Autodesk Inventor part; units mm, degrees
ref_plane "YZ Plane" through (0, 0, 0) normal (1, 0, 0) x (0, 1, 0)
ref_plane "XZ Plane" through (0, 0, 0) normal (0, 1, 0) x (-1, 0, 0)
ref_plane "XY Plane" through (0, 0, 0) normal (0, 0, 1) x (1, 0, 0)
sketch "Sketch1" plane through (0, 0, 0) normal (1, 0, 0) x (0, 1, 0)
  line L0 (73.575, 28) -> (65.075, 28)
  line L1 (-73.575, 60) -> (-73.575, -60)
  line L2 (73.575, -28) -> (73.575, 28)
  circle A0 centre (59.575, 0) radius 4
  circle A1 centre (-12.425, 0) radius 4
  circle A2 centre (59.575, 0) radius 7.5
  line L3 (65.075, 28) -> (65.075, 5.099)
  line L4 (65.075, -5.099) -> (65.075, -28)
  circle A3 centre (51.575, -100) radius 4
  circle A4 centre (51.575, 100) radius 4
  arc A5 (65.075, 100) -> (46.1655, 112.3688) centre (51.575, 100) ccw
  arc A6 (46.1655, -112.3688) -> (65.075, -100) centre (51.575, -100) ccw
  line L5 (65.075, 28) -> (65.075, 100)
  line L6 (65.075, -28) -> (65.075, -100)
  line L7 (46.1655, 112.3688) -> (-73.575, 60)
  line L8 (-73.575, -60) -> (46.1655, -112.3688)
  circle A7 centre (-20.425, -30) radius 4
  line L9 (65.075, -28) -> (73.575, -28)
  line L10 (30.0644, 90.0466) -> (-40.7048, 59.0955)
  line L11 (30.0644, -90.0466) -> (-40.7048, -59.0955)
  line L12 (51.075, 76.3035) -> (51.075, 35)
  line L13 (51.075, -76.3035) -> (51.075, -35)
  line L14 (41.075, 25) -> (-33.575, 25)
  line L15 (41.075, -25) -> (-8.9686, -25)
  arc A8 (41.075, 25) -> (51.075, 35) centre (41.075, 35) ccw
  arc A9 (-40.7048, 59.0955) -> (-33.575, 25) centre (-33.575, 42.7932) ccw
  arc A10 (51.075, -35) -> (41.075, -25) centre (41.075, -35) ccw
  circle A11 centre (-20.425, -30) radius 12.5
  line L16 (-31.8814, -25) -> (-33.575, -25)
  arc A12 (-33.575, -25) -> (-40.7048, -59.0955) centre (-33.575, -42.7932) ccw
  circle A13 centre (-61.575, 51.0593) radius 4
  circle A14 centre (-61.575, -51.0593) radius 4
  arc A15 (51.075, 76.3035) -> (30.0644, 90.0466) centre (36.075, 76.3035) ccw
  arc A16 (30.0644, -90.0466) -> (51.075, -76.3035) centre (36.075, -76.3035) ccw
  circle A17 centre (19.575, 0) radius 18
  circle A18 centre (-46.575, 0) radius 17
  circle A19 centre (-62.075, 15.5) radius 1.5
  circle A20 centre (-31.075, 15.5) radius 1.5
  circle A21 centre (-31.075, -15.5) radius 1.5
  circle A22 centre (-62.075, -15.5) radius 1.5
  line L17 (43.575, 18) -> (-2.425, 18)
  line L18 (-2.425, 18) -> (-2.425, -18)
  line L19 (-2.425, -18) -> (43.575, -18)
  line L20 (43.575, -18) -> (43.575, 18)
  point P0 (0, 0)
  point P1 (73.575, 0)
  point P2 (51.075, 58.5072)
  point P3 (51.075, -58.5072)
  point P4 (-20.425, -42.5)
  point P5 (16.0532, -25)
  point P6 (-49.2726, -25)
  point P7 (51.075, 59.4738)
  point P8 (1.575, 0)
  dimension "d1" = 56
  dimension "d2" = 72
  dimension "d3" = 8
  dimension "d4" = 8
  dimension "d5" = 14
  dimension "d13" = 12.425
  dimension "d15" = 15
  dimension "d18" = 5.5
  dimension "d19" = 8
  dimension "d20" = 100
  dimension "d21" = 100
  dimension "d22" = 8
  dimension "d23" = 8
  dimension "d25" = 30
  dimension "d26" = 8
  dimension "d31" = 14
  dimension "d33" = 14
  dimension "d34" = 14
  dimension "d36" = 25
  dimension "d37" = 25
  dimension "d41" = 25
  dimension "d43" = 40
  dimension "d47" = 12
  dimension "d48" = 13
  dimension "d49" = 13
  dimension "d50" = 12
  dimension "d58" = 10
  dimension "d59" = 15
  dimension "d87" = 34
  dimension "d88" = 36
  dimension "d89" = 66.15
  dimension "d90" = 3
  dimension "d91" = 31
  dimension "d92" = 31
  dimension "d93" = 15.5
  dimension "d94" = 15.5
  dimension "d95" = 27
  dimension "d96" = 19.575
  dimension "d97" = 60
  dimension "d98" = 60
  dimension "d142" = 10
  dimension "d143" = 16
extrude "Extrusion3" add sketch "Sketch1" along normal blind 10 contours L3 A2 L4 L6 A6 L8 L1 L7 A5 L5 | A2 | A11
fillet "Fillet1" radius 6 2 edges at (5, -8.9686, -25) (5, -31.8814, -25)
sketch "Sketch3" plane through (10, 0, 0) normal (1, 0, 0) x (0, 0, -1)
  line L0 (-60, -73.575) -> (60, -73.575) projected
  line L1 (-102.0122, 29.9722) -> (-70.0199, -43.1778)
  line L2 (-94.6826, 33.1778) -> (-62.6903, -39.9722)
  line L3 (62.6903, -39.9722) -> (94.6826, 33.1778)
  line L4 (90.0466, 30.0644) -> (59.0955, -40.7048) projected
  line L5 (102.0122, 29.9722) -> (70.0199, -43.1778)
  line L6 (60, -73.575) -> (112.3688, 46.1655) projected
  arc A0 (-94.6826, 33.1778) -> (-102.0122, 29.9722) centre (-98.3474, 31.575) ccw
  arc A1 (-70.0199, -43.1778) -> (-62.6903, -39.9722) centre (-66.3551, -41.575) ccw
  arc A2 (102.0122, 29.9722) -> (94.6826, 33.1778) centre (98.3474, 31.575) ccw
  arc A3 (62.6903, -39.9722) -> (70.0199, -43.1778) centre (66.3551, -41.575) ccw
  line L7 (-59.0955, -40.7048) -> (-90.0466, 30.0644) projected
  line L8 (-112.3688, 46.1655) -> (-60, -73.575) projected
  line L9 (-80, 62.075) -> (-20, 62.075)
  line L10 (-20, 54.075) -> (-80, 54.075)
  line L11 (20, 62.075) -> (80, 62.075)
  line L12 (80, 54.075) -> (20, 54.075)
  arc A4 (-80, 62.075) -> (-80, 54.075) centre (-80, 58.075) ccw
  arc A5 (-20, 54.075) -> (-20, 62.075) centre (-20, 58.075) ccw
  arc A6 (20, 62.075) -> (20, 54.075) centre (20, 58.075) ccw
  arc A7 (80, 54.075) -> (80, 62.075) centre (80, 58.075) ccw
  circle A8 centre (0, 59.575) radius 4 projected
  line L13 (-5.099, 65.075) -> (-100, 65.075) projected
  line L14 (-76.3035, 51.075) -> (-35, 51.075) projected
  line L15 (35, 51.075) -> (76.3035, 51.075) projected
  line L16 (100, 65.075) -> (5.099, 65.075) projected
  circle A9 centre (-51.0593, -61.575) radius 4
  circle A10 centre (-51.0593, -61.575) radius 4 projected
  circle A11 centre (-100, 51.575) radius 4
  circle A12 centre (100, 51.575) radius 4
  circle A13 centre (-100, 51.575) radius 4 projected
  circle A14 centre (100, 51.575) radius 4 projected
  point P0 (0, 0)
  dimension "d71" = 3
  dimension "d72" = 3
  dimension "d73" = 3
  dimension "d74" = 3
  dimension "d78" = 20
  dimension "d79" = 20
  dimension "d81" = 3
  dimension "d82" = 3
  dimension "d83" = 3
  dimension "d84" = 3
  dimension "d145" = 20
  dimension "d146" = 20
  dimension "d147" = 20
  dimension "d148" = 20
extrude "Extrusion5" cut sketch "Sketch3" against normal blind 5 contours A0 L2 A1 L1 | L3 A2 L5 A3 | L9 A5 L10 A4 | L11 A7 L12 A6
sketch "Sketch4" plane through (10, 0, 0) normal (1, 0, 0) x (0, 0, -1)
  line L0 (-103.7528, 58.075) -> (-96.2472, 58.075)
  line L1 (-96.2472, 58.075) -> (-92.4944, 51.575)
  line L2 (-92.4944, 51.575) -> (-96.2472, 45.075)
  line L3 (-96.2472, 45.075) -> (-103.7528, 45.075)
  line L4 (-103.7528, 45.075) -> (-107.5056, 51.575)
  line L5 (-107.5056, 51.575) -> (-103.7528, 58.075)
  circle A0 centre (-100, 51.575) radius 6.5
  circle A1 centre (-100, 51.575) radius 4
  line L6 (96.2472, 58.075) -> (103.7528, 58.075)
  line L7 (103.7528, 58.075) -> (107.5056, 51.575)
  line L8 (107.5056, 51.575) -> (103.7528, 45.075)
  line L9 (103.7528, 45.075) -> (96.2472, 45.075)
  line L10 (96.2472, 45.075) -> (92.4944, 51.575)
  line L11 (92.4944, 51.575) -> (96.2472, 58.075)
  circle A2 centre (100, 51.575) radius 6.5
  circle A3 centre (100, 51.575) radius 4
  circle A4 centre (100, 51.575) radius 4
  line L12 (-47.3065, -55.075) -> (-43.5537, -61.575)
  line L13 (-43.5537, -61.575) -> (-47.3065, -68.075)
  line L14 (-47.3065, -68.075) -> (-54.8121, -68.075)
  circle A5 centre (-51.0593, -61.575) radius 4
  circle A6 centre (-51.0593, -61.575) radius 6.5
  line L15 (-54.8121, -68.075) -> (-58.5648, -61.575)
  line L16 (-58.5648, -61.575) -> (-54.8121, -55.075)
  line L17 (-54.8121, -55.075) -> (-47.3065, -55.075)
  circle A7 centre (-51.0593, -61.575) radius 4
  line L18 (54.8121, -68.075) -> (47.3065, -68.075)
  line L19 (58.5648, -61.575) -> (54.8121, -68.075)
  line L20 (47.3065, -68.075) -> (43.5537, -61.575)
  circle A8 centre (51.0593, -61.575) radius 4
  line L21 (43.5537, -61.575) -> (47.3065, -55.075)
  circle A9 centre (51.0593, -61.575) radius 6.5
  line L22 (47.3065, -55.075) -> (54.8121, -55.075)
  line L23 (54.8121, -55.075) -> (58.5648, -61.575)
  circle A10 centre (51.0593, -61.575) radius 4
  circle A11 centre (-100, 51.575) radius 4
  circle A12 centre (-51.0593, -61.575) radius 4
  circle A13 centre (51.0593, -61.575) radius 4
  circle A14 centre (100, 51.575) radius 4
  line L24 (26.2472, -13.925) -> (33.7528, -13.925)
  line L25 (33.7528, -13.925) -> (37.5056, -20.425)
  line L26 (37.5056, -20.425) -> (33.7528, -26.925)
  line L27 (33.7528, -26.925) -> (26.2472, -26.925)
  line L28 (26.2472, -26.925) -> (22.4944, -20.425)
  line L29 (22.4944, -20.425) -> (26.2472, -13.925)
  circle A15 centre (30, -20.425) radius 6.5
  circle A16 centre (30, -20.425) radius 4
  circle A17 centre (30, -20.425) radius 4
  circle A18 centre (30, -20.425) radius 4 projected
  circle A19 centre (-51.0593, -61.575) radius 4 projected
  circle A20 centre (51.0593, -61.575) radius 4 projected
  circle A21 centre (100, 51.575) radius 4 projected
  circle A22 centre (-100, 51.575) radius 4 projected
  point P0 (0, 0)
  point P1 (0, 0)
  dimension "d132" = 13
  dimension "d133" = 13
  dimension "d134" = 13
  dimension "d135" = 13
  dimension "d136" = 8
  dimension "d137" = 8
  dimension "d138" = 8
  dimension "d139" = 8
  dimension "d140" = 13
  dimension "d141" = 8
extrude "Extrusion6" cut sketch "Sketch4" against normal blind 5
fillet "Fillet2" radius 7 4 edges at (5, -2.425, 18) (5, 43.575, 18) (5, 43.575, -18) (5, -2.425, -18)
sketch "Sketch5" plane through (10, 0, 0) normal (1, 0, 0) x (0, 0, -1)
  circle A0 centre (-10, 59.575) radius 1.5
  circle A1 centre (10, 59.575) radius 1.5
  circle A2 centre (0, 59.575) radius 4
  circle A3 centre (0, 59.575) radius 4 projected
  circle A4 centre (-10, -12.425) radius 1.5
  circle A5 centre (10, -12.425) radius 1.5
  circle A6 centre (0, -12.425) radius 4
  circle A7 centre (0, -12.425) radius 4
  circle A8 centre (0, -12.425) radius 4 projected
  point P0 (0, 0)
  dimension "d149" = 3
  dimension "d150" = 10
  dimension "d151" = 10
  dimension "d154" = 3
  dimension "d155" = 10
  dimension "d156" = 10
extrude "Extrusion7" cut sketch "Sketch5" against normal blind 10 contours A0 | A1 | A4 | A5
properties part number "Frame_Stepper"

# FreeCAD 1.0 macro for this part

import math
import FreeCAD as App
import Part
import Sketcher

V = App.Vector
Q = App.Units.Quantity


def edges_at(feature, points):
    """Names of the edges that pass closest to the given points."""
    edges = feature.Shape.Edges
    near = lambda p: min(range(len(edges)), key=lambda i: edges[i].distToShape(Part.Vertex(*p))[0])
    return sorted({f"Edge{near(p) + 1}" for p in points})


def add_polygon(sketch, points):
    """Adds a closed chain of lines whose ends are joined by coincident constraints."""
    first, n = sketch.GeometryCount, len(points)
    for a, b in zip(points, points[1:] + points[:1]):
        sketch.addGeometry(Part.LineSegment(App.Vector(*a, 0), App.Vector(*b, 0)), False)
    for i in range(n):
        sketch.addConstraint(Sketcher.Constraint("Coincident", first + i, 2, first + (i + 1) % n, 1))

doc = App.newDocument("Part")
body = doc.addObject("PartDesign::Body", "Body")

# Sketch on YZ plane
sketch1 = doc.addObject("Sketcher::SketchObject", "Sketch")
body.addObject(sketch1)
sketch1.AttachmentSupport = (doc.YZ_Plane, [""])
sketch1.MapMode = "FlatFace"
sketch1.addGeometry(Part.LineSegment(V(65.1, 5.1, 0), V(65.1, 100, 0)), False)  # 0
sketch1.addGeometry(Part.ArcOfCircle(Part.Circle(V(51.6, 100, 0), V(0, 0, 1), 13.5), math.radians(0), math.radians(114)), False)  # 1
sketch1.addGeometry(Part.LineSegment(V(46.2, 112.4, 0), V(-73.6, 60, 0)), False)  # 2
sketch1.addGeometry(Part.LineSegment(V(-73.6, 60, 0), V(-73.6, -60, 0)), False)  # 3
sketch1.addGeometry(Part.LineSegment(V(-73.6, -60, 0), V(46.2, -112.4, 0)), False)  # 4
sketch1.addGeometry(Part.ArcOfCircle(Part.Circle(V(51.6, -100, 0), V(0, 0, 1), 13.5), math.radians(-114), math.radians(0)), False)  # 5
sketch1.addGeometry(Part.LineSegment(V(65.1, -100, 0), V(65.1, -5.1, 0)), False)  # 6
sketch1.addGeometry(Part.ArcOfCircle(Part.Circle(V(59.6, 0, 0), V(0, 0, 1), 7.5), math.radians(-43), math.radians(43)), False)  # 7
sketch1.addGeometry(Part.Circle(V(-61.6, -51.1, 0), V(0, 0, 1), 4), False)  # 8
sketch1.addGeometry(Part.Circle(V(-62.1, -15.5, 0), V(0, 0, 1), 1.5), False)  # 9
sketch1.addGeometry(Part.Circle(V(-46.6, 0, 0), V(0, 0, 1), 17), False)  # 10
sketch1.addGeometry(Part.ArcOfCircle(Part.Circle(V(36.1, -76.3, 0), V(0, 0, 1), 15), math.radians(-114), math.radians(0)), False)  # 11
sketch1.addGeometry(Part.LineSegment(V(30.1, -90, 0), V(-40.7, -59.1, 0)), False)  # 12
sketch1.addGeometry(Part.ArcOfCircle(Part.Circle(V(-33.6, -42.8, 0), V(0, 0, 1), 17.8), math.radians(90), math.radians(246)), False)  # 13
sketch1.addGeometry(Part.LineSegment(V(-33.6, -25, 0), V(-31.9, -25, 0)), False)  # 14
sketch1.addGeometry(Part.ArcOfCircle(Part.Circle(V(-20.4, -30, 0), V(0, 0, 1), 12.5), math.radians(156), math.radians(384)), False)  # 15
sketch1.addGeometry(Part.LineSegment(V(-9, -25, 0), V(41.1, -25, 0)), False)  # 16
sketch1.addGeometry(Part.ArcOfCircle(Part.Circle(V(41.1, -35, 0), V(0, 0, 1), 10), math.radians(0), math.radians(90)), False)  # 17
sketch1.addGeometry(Part.LineSegment(V(51.1, -35, 0), V(51.1, -76.3, 0)), False)  # 18
sketch1.addGeometry(Part.Circle(V(-31.1, -15.5, 0), V(0, 0, 1), 1.5), False)  # 19
sketch1.addGeometry(Part.Circle(V(-12.4, 0, 0), V(0, 0, 1), 4), False)  # 20
sketch1.addGeometry(Part.Circle(V(51.6, -100, 0), V(0, 0, 1), 4), False)  # 21
add_polygon(sketch1, [(-2.4, 18), (43.6, 18), (43.6, -18), (-2.4, -18)])  # lines 22-25
sketch1.addGeometry(Part.Circle(V(-62.1, 15.5, 0), V(0, 0, 1), 1.5), False)  # 26
sketch1.addGeometry(Part.Circle(V(-61.6, 51.1, 0), V(0, 0, 1), 4), False)  # 27
sketch1.addGeometry(Part.Circle(V(-31.1, 15.5, 0), V(0, 0, 1), 1.5), False)  # 28
sketch1.addGeometry(Part.LineSegment(V(-40.7, 59.1, 0), V(30.1, 90, 0)), False)  # 29
sketch1.addGeometry(Part.ArcOfCircle(Part.Circle(V(36.1, 76.3, 0), V(0, 0, 1), 15), math.radians(0), math.radians(114)), False)  # 30
sketch1.addGeometry(Part.LineSegment(V(51.1, 76.3, 0), V(51.1, 35, 0)), False)  # 31
sketch1.addGeometry(Part.ArcOfCircle(Part.Circle(V(41.1, 35, 0), V(0, 0, 1), 10), math.radians(-90), math.radians(0)), False)  # 32
sketch1.addGeometry(Part.LineSegment(V(41.1, 25, 0), V(-33.6, 25, 0)), False)  # 33
sketch1.addGeometry(Part.ArcOfCircle(Part.Circle(V(-33.6, 42.8, 0), V(0, 0, 1), 17.8), math.radians(114), math.radians(270)), False)  # 34
sketch1.addGeometry(Part.Circle(V(51.6, 100, 0), V(0, 0, 1), 4), False)  # 35
sketch1.addGeometry(Part.Circle(V(59.6, 0, 0), V(0, 0, 1), 4), False)  # 36
sketch1.addGeometry(Part.Circle(V(-20.4, -30, 0), V(0, 0, 1), 4), False)  # 37
sketch1.addConstraint(Sketcher.Constraint("Tangent", 0, 2, 1, 1))
sketch1.addConstraint(Sketcher.Constraint("Tangent", 1, 2, 2, 1))
sketch1.addConstraint(Sketcher.Constraint("Coincident", 2, 2, 3, 1))
sketch1.addConstraint(Sketcher.Constraint("Coincident", 3, 2, 4, 1))
sketch1.addConstraint(Sketcher.Constraint("Tangent", 4, 2, 5, 1))
sketch1.addConstraint(Sketcher.Constraint("Tangent", 5, 2, 6, 1))
sketch1.addConstraint(Sketcher.Constraint("Coincident", 6, 2, 7, 1))
sketch1.addConstraint(Sketcher.Constraint("Coincident", 7, 2, 0, 1))
sketch1.addConstraint(Sketcher.Constraint("Tangent", 11, 1, 12, 1))
sketch1.addConstraint(Sketcher.Constraint("Tangent", 12, 2, 13, 2))
sketch1.addConstraint(Sketcher.Constraint("Tangent", 13, 1, 14, 1))
sketch1.addConstraint(Sketcher.Constraint("Coincident", 14, 2, 15, 1))
sketch1.addConstraint(Sketcher.Constraint("Coincident", 15, 2, 16, 1))
sketch1.addConstraint(Sketcher.Constraint("Tangent", 16, 2, 17, 2))
sketch1.addConstraint(Sketcher.Constraint("Tangent", 17, 1, 18, 1))
sketch1.addConstraint(Sketcher.Constraint("Tangent", 18, 2, 11, 2))
sketch1.addConstraint(Sketcher.Constraint("Tangent", 29, 2, 30, 2))
sketch1.addConstraint(Sketcher.Constraint("Tangent", 30, 1, 31, 1))
sketch1.addConstraint(Sketcher.Constraint("Tangent", 31, 2, 32, 2))
sketch1.addConstraint(Sketcher.Constraint("Tangent", 32, 1, 33, 1))
sketch1.addConstraint(Sketcher.Constraint("Tangent", 33, 2, 34, 2))
sketch1.addConstraint(Sketcher.Constraint("Tangent", 34, 1, 29, 1))
sketch1.addConstraint(Sketcher.Constraint("Vertical", 0))
sketch1.addConstraint(Sketcher.Constraint("Vertical", 3))
sketch1.addConstraint(Sketcher.Constraint("Vertical", 6))
sketch1.addConstraint(Sketcher.Constraint("Horizontal", 14))
sketch1.addConstraint(Sketcher.Constraint("Horizontal", 16))
sketch1.addConstraint(Sketcher.Constraint("Vertical", 18))
sketch1.addConstraint(Sketcher.Constraint("Horizontal", 22))
sketch1.addConstraint(Sketcher.Constraint("Vertical", 23))
sketch1.addConstraint(Sketcher.Constraint("Horizontal", 24))
sketch1.addConstraint(Sketcher.Constraint("Vertical", 25))
sketch1.addConstraint(Sketcher.Constraint("Vertical", 31))
sketch1.addConstraint(Sketcher.Constraint("Horizontal", 33))
sketch1.addConstraint(Sketcher.Constraint("Coincident", 21, 3, 5, 3))
sketch1.addConstraint(Sketcher.Constraint("Coincident", 35, 3, 1, 3))
sketch1.addConstraint(Sketcher.Constraint("Coincident", 36, 3, 7, 3))
sketch1.addConstraint(Sketcher.Constraint("Coincident", 37, 3, 15, 3))
sketch1.addConstraint(Sketcher.Constraint("Equal", 1, 5))
sketch1.addConstraint(Sketcher.Constraint("Equal", 9, 19))
sketch1.addConstraint(Sketcher.Constraint("Equal", 8, 20))
sketch1.addConstraint(Sketcher.Constraint("Equal", 20, 21))
sketch1.addConstraint(Sketcher.Constraint("Equal", 19, 26))
sketch1.addConstraint(Sketcher.Constraint("Equal", 21, 27))
sketch1.addConstraint(Sketcher.Constraint("Equal", 26, 28))
sketch1.addConstraint(Sketcher.Constraint("Equal", 11, 30))
sketch1.addConstraint(Sketcher.Constraint("Equal", 17, 32))
sketch1.addConstraint(Sketcher.Constraint("Equal", 13, 34))
sketch1.addConstraint(Sketcher.Constraint("Equal", 27, 35))
sketch1.addConstraint(Sketcher.Constraint("Equal", 35, 36))
sketch1.addConstraint(Sketcher.Constraint("Equal", 36, 37))
sketch1.addConstraint(Sketcher.Constraint("Symmetric", 1, 3, 5, 3, -1))
sketch1.addConstraint(Sketcher.Constraint("Symmetric", 9, 3, 26, 3, -1))
sketch1.addConstraint(Sketcher.Constraint("Symmetric", 8, 3, 27, 3, -1))
sketch1.addConstraint(Sketcher.Constraint("Symmetric", 19, 3, 28, 3, -1))
sketch1.addConstraint(Sketcher.Constraint("Symmetric", 11, 3, 30, 3, -1))
sketch1.addConstraint(Sketcher.Constraint("Symmetric", 13, 3, 34, 3, -1))
sketch1.addConstraint(Sketcher.Constraint("PointOnObject", 7, 3, -1))
sketch1.addConstraint(Sketcher.Constraint("PointOnObject", 10, 3, -1))
sketch1.addConstraint(Sketcher.Constraint("PointOnObject", 20, 3, -1))
sketch1.addConstraint(Sketcher.Constraint("Parallel", 4, 12))
sketch1.addConstraint(Sketcher.Constraint("Parallel", 2, 29))
sketch1.addConstraint(Sketcher.Constraint("Horizontal", 9, 3, 19, 3))
sketch1.addConstraint(Sketcher.Constraint("Horizontal", 14, 2, 15, 2))
sketch1.addConstraint(Sketcher.Constraint("Diameter", 8, 8.0))
sketch1.addConstraint(Sketcher.Constraint("Diameter", 9, 3.0))
sketch1.addConstraint(Sketcher.Constraint("Diameter", 10, 34.0))
sketch1.addConstraint(Sketcher.Constraint("Radius", 11, 15.0))
sketch1.addConstraint(Sketcher.Constraint("Radius", 17, 10.0))
sketch1.addConstraint(Sketcher.Constraint("Radius", 1, 13.5))
sketch1.addConstraint(Sketcher.Constraint("Radius", 7, 7.5))
sketch1.addConstraint(Sketcher.Constraint("Radius", 15, 12.5))
sketch1.addConstraint(Sketcher.Constraint("DistanceY", 23, 2, 23, 1, 36.0))
sketch1.addConstraint(Sketcher.Constraint("DistanceY", -1, 1, 1, 3, 100.0))
sketch1.addConstraint(Sketcher.Constraint("DistanceY", 15, 3, -1, 1, 30.0))
sketch1.addConstraint(Sketcher.Constraint("DistanceY", -1, 1, 2, 2, 60.0))
sketch1.addConstraint(Sketcher.Constraint("DistanceY", 13, 1, -1, 1, 25.0))
sketch1.addConstraint(Sketcher.Constraint("DistanceX", 1, 3, 7, 3, 8.0))
sketch1.addConstraint(Sketcher.Constraint("DistanceX", 8, 3, 10, 3, 15.0))
sketch1.addConstraint(Sketcher.Constraint("DistanceX", 10, 3, 13, 3, 13.0))
sketch1.addConstraint(Sketcher.Constraint("DistanceX", 9, 3, 19, 3, 31.0))
sketch1.addConstraint(Sketcher.Constraint("DistanceX", 15, 3, 20, 3, 8.0))
sketch1.addConstraint(Sketcher.Constraint("DistanceX", 15, 3, 21, 3, 72.0))
sketch1.addConstraint(Sketcher.Constraint("DistanceY", 9, 3, 26, 3, 31.0))
sketch1.addConstraint(Sketcher.Constraint("DistanceX", 2, 2, 27, 3, 12.0))
sketch1.addConstraint(Sketcher.Constraint("DistanceX", 17, 1, 6, 2, 14.0))
sketch1.addConstraint(Sketcher.Constraint("DistanceX", 22, 2, 7, 3, 16.0))
sketch1.addConstraint(Sketcher.Constraint("DistanceX", 20, 3, 24, 2, 10.0))
sketch1.addConstraint(Sketcher.Constraint("DistanceY", 15, 3, 24, 2, 12.0))
sketch1.addConstraint(Sketcher.Constraint("DistanceX", 9, 3, 10, 3, 15.5))
sketch1.addConstraint(Sketcher.Constraint("DistanceX", 20, 3, -1, 1, 12.425))
sketch1.addConstraint(Sketcher.Constraint("DistanceX", 33, 2, 33, 1, 74.65))
sketch1.addConstraint(Sketcher.Constraint("Radius", 13, 17.7932))
sketch1.addConstraint(Sketcher.Constraint("DistanceY", 8, 3, 13, 3, 8.266))
pad1 = doc.addObject("PartDesign::Pad", "Pad")
body.addObject(pad1)
pad1.Profile = sketch1
pad1.Length = 10
doc.recompute()

fillet = doc.addObject("PartDesign::Fillet", "Fillet")
body.addObject(fillet)
fillet.Base = (pad1, edges_at(pad1, [(5, -8.969, -25), (5, -31.881, -25)]))
fillet.Radius = 6

# Sketch on YZ plane
sketch2 = doc.addObject("Sketcher::SketchObject", "Sketch001")
body.addObject(sketch2)
sketch2.AttachmentSupport = (doc.YZ_Plane, [""])
sketch2.MapMode = "FlatFace"
sketch2.AttachmentOffset = App.Placement(V(0, 0, 10), App.Rotation())
sketch2.addGeometry(Part.ArcOfCircle(Part.Circle(V(31.6, 98.3, 0), V(0, 0, 1), 4), math.radians(-66), math.radians(114)), False)
sketch2.addGeometry(Part.LineSegment(V(30, 102, 0), V(-43.2, 70, 0)), False)
sketch2.addGeometry(Part.ArcOfCircle(Part.Circle(V(-41.6, 66.4, 0), V(0, 0, 1), 4), math.radians(114), math.radians(294)), False)
sketch2.addGeometry(Part.LineSegment(V(-40, 62.7, 0), V(33.2, 94.7, 0)), False)
sketch2.addGeometry(Part.LineSegment(V(33.2, -94.7, 0), V(-40, -62.7, 0)), False)
sketch2.addGeometry(Part.ArcOfCircle(Part.Circle(V(-41.6, -66.4, 0), V(0, 0, 1), 4), math.radians(66), math.radians(246)), False)
sketch2.addGeometry(Part.LineSegment(V(-43.2, -70, 0), V(30, -102, 0)), False)
sketch2.addGeometry(Part.ArcOfCircle(Part.Circle(V(31.6, -98.3, 0), V(0, 0, 1), 4), math.radians(-114), math.radians(66)), False)
sketch2.addGeometry(Part.LineSegment(V(62.1, 20, 0), V(62.1, 80, 0)), False)
sketch2.addGeometry(Part.ArcOfCircle(Part.Circle(V(58.1, 80, 0), V(0, 0, 1), 4), math.radians(0), math.radians(180)), False)
sketch2.addGeometry(Part.LineSegment(V(54.1, 80, 0), V(54.1, 20, 0)), False)
sketch2.addGeometry(Part.ArcOfCircle(Part.Circle(V(58.1, 20, 0), V(0, 0, 1), 4), math.radians(180), math.radians(360)), False)
sketch2.addGeometry(Part.LineSegment(V(62.1, -80, 0), V(62.1, -20, 0)), False)
sketch2.addGeometry(Part.ArcOfCircle(Part.Circle(V(58.1, -20, 0), V(0, 0, 1), 4), math.radians(0), math.radians(180)), False)
sketch2.addGeometry(Part.LineSegment(V(54.1, -20, 0), V(54.1, -80, 0)), False)
sketch2.addGeometry(Part.ArcOfCircle(Part.Circle(V(58.1, -80, 0), V(0, 0, 1), 4), math.radians(180), math.radians(360)), False)
sketch2.addConstraint(Sketcher.Constraint("Tangent", 0, 2, 1, 1))
sketch2.addConstraint(Sketcher.Constraint("Tangent", 1, 2, 2, 1))
sketch2.addConstraint(Sketcher.Constraint("Tangent", 2, 2, 3, 1))
sketch2.addConstraint(Sketcher.Constraint("Tangent", 3, 2, 0, 1))
sketch2.addConstraint(Sketcher.Constraint("Tangent", 4, 2, 5, 1))
sketch2.addConstraint(Sketcher.Constraint("Tangent", 5, 2, 6, 1))
sketch2.addConstraint(Sketcher.Constraint("Tangent", 6, 2, 7, 1))
sketch2.addConstraint(Sketcher.Constraint("Tangent", 7, 2, 4, 1))
sketch2.addConstraint(Sketcher.Constraint("Tangent", 8, 2, 9, 1))
sketch2.addConstraint(Sketcher.Constraint("Tangent", 9, 2, 10, 1))
sketch2.addConstraint(Sketcher.Constraint("Tangent", 10, 2, 11, 1))
sketch2.addConstraint(Sketcher.Constraint("Tangent", 11, 2, 8, 1))
sketch2.addConstraint(Sketcher.Constraint("Tangent", 12, 2, 13, 1))
sketch2.addConstraint(Sketcher.Constraint("Tangent", 13, 2, 14, 1))
sketch2.addConstraint(Sketcher.Constraint("Tangent", 14, 2, 15, 1))
sketch2.addConstraint(Sketcher.Constraint("Tangent", 15, 2, 12, 1))
sketch2.addConstraint(Sketcher.Constraint("Vertical", 8))
sketch2.addConstraint(Sketcher.Constraint("Vertical", 10))
sketch2.addConstraint(Sketcher.Constraint("Vertical", 12))
sketch2.addConstraint(Sketcher.Constraint("Vertical", 14))
sketch2.addConstraint(Sketcher.Constraint("Equal", 0, 2))
sketch2.addConstraint(Sketcher.Constraint("Equal", 2, 5))
sketch2.addConstraint(Sketcher.Constraint("Equal", 5, 7))
sketch2.addConstraint(Sketcher.Constraint("Equal", 7, 9))
sketch2.addConstraint(Sketcher.Constraint("Equal", 11, 13))
sketch2.addConstraint(Sketcher.Constraint("Symmetric", 2, 3, 5, 3, -1))
sketch2.addConstraint(Sketcher.Constraint("Symmetric", 0, 3, 7, 3, -1))
sketch2.addConstraint(Sketcher.Constraint("Symmetric", 11, 3, 13, 3, -1))
sketch2.addConstraint(Sketcher.Constraint("Equal", 10, 12))
sketch2.addConstraint(Sketcher.Constraint("DistanceY", -1, 1, 11, 3, 20.0))
sketch2.addConstraint(Sketcher.Constraint("Radius", 0, 4.0))
sketch2.addConstraint(Sketcher.Constraint("DistanceY", 8, 1, 8, 2, 60.0))
sketch2.addConstraint(Sketcher.Constraint("DistanceX", 0, 3, 9, 3, 26.5))
sketch2.addConstraint(Sketcher.Constraint("Distance", 1, 79.84))
sketch2.addConstraint(Sketcher.Constraint("DistanceY", -1, 1, 1, 2, 70.02))
sketch2.addConstraint(Sketcher.Constraint("DistanceX", 2, 3, 0, 3, 73.15))
sketch2.addConstraint(Sketcher.Constraint("DistanceX", -1, 1, 0, 3, 31.575))
pocket1 = doc.addObject("PartDesign::Pocket", "Pocket")
body.addObject(pocket1)
pocket1.Profile = sketch2
pocket1.Length = 5

# Sketch on YZ plane
sketch3 = doc.addObject("Sketcher::SketchObject", "Sketch002")
body.addObject(sketch3)
sketch3.AttachmentSupport = (doc.YZ_Plane, [""])
sketch3.MapMode = "FlatFace"
sketch3.AttachmentOffset = App.Placement(V(0, 0, 10), App.Rotation())
add_polygon(sketch3, [(58.1, 103.8), (51.6, 107.5), (45.1, 103.8), (45.1, 96.2), (51.6, 92.5), (58.1, 96.2)])  # lines 0-5
sketch3.addGeometry(Part.Circle(V(51.6, 100, 0), V(0, 0, 1), 4), False)  # 6
add_polygon(sketch3, [(58.1, -96.2), (51.6, -92.5), (45.1, -96.2), (45.1, -103.8), (51.6, -107.5), (58.1, -103.8)])  # lines 7-12
sketch3.addGeometry(Part.Circle(V(51.6, -100, 0), V(0, 0, 1), 4), False)  # 13
add_polygon(sketch3, [(-55.1, 47.3), (-55.1, 54.8), (-61.6, 58.6), (-68.1, 54.8), (-68.1, 47.3), (-61.6, 43.6)])  # lines 14-19
sketch3.addGeometry(Part.Circle(V(-61.6, 51.1, 0), V(0, 0, 1), 4), False)  # 20
add_polygon(sketch3, [(-68.1, -54.8), (-61.6, -58.6), (-55.1, -54.8), (-55.1, -47.3), (-61.6, -43.6), (-68.1, -47.3)])  # lines 21-26
sketch3.addGeometry(Part.Circle(V(-61.6, -51.1, 0), V(0, 0, 1), 4), False)  # 27
add_polygon(sketch3, [(-13.9, -26.2), (-20.4, -22.5), (-26.9, -26.2), (-26.9, -33.8), (-20.4, -37.5), (-13.9, -33.8)])  # lines 28-33
sketch3.addGeometry(Part.Circle(V(-20.4, -30, 0), V(0, 0, 1), 4), False)  # 34
sketch3.addConstraint(Sketcher.Constraint("Vertical", 2))
sketch3.addConstraint(Sketcher.Constraint("Vertical", 5))
sketch3.addConstraint(Sketcher.Constraint("Vertical", 9))
sketch3.addConstraint(Sketcher.Constraint("Vertical", 12))
sketch3.addConstraint(Sketcher.Constraint("Vertical", 14))
sketch3.addConstraint(Sketcher.Constraint("Vertical", 17))
sketch3.addConstraint(Sketcher.Constraint("Vertical", 23))
sketch3.addConstraint(Sketcher.Constraint("Vertical", 26))
sketch3.addConstraint(Sketcher.Constraint("Vertical", 30))
sketch3.addConstraint(Sketcher.Constraint("Vertical", 33))
sketch3.addConstraint(Sketcher.Constraint("Equal", 6, 13))
sketch3.addConstraint(Sketcher.Constraint("Equal", 13, 20))
sketch3.addConstraint(Sketcher.Constraint("Equal", 20, 27))
sketch3.addConstraint(Sketcher.Constraint("Equal", 27, 34))
sketch3.addConstraint(Sketcher.Constraint("Symmetric", 6, 3, 13, 3, -1))
sketch3.addConstraint(Sketcher.Constraint("Symmetric", 20, 3, 27, 3, -1))
sketch3.addConstraint(Sketcher.Constraint("Symmetric", 3, 2, 7, 2, -1))
sketch3.addConstraint(Sketcher.Constraint("Symmetric", 2, 2, 8, 2, -1))
sketch3.addConstraint(Sketcher.Constraint("Symmetric", 0, 2, 10, 2, -1))
sketch3.addConstraint(Sketcher.Constraint("Symmetric", 5, 2, 11, 2, -1))
sketch3.addConstraint(Sketcher.Constraint("Symmetric", 15, 2, 21, 2, -1))
sketch3.addConstraint(Sketcher.Constraint("Symmetric", 14, 2, 22, 2, -1))
sketch3.addConstraint(Sketcher.Constraint("Symmetric", 18, 2, 24, 2, -1))
sketch3.addConstraint(Sketcher.Constraint("Symmetric", 17, 2, 25, 2, -1))
sketch3.addConstraint(Sketcher.Constraint("Parallel", 0, 3))
sketch3.addConstraint(Sketcher.Constraint("Parallel", 1, 4))
sketch3.addConstraint(Sketcher.Constraint("Parallel", 3, 7))
sketch3.addConstraint(Sketcher.Constraint("Parallel", 4, 8))
sketch3.addConstraint(Sketcher.Constraint("Parallel", 7, 10))
sketch3.addConstraint(Sketcher.Constraint("Parallel", 10, 15))
sketch3.addConstraint(Sketcher.Constraint("Parallel", 11, 16))
sketch3.addConstraint(Sketcher.Constraint("Parallel", 15, 18))
sketch3.addConstraint(Sketcher.Constraint("Parallel", 16, 19))
sketch3.addConstraint(Sketcher.Constraint("Parallel", 18, 21))
sketch3.addConstraint(Sketcher.Constraint("Parallel", 21, 24))
sketch3.addConstraint(Sketcher.Constraint("Parallel", 24, 28))
sketch3.addConstraint(Sketcher.Constraint("Parallel", 25, 29))
sketch3.addConstraint(Sketcher.Constraint("Parallel", 28, 31))
sketch3.addConstraint(Sketcher.Constraint("Parallel", 29, 32))
sketch3.addConstraint(Sketcher.Constraint("Horizontal", 2, 2, 4, 2))
sketch3.addConstraint(Sketcher.Constraint("Horizontal", 1, 2, 5, 2))
sketch3.addConstraint(Sketcher.Constraint("Horizontal", 14, 2, 16, 2))
sketch3.addConstraint(Sketcher.Constraint("Horizontal", 17, 2, 19, 2))
sketch3.addConstraint(Sketcher.Constraint("Horizontal", 30, 2, 32, 2))
sketch3.addConstraint(Sketcher.Constraint("Horizontal", 29, 2, 33, 2))
sketch3.addConstraint(Sketcher.Constraint("Vertical", 13, 3, 0, 2))
sketch3.addConstraint(Sketcher.Constraint("Vertical", 27, 3, 15, 2))
sketch3.addConstraint(Sketcher.Constraint("Vertical", 34, 3, 28, 2))
sketch3.addConstraint(Sketcher.Constraint("Equal", 12, 14))
sketch3.addConstraint(Sketcher.Constraint("Equal", 26, 30))
sketch3.addConstraint(Sketcher.Constraint("Equal", 11, 15))
sketch3.addConstraint(Sketcher.Constraint("Equal", 25, 28))
sketch3.addConstraint(Sketcher.Constraint("Diameter", 6, 8.0))
sketch3.addConstraint(Sketcher.Constraint("DistanceX", 2, 2, 4, 2, 13.0))
sketch3.addConstraint(Sketcher.Constraint("Angle", 0, Q("149.9998 deg")))
sketch3.addConstraint(Sketcher.Constraint("DistanceY", -1, 1, 6, 3, 100.0))
sketch3.addConstraint(Sketcher.Constraint("DistanceY", 34, 3, -1, 1, 30.0))
sketch3.addConstraint(Sketcher.Constraint("DistanceX", 34, 3, 13, 3, 72.0))
sketch3.addConstraint(Sketcher.Constraint("DistanceX", 20, 3, 6, 3, 113.15))
sketch3.addConstraint(Sketcher.Constraint("DistanceY", 2, 2, 2, 1, 7.5056))
sketch3.addConstraint(Sketcher.Constraint("DistanceX", -1, 1, 6, 3, 51.575))
sketch3.addConstraint(Sketcher.Constraint("DistanceY", -1, 1, 14, 2, 54.812))
sketch3.addConstraint(Sketcher.Constraint("DistanceY", 27, 3, 0, 2, 158.565))
sketch3.addConstraint(Sketcher.Constraint("DistanceY", 20, 3, 2, 2, 45.188))
sketch3.addConstraint(Sketcher.Constraint("DistanceY", 23, 2, 28, 2, 24.812))
pocket2 = doc.addObject("PartDesign::Pocket", "Pocket001")
body.addObject(pocket2)
pocket2.Profile = sketch3
pocket2.Length = 5
doc.recompute()

fillet2 = doc.addObject("PartDesign::Fillet", "Fillet001")
body.addObject(fillet2)
fillet2.Base = (pocket2, edges_at(pocket2, [
    (5, -2.425, 18),
    (5, 43.575, 18),
    (5, 43.575, -18),
    (5, -2.425, -18),
]))
fillet2.Radius = 7

# Sketch on YZ plane
sketch4 = doc.addObject("Sketcher::SketchObject", "Sketch003")
body.addObject(sketch4)
sketch4.AttachmentSupport = (doc.YZ_Plane, [""])
sketch4.MapMode = "FlatFace"
sketch4.AttachmentOffset = App.Placement(V(0, 0, 10), App.Rotation())
sketch4.addGeometry(Part.Circle(V(59.6, 10, 0), V(0, 0, 1), 1.5), False)
sketch4.addGeometry(Part.Circle(V(59.6, -10, 0), V(0, 0, 1), 1.5), False)
sketch4.addGeometry(Part.Circle(V(-12.4, 10, 0), V(0, 0, 1), 1.5), False)
sketch4.addGeometry(Part.Circle(V(-12.4, -10, 0), V(0, 0, 1), 1.5), False)
sketch4.addConstraint(Sketcher.Constraint("Equal", 0, 1))
sketch4.addConstraint(Sketcher.Constraint("Equal", 1, 2))
sketch4.addConstraint(Sketcher.Constraint("Equal", 2, 3))
sketch4.addConstraint(Sketcher.Constraint("Symmetric", 0, 3, 1, 3, -1))
sketch4.addConstraint(Sketcher.Constraint("Symmetric", 2, 3, 3, 3, -1))
sketch4.addConstraint(Sketcher.Constraint("Horizontal", 0, 3, 2, 3))
sketch4.addConstraint(Sketcher.Constraint("Diameter", 0, 3.0))
sketch4.addConstraint(Sketcher.Constraint("DistanceY", -1, 1, 0, 3, 10.0))
sketch4.addConstraint(Sketcher.Constraint("DistanceX", 2, 3, 0, 3, 72.0))
sketch4.addConstraint(Sketcher.Constraint("DistanceX", -1, 1, 0, 3, 59.575))
pocket3 = doc.addObject("PartDesign::Pocket", "Pocket002")
body.addObject(pocket3)
pocket3.Profile = sketch4
pocket3.Length = 10

doc.recompute()
